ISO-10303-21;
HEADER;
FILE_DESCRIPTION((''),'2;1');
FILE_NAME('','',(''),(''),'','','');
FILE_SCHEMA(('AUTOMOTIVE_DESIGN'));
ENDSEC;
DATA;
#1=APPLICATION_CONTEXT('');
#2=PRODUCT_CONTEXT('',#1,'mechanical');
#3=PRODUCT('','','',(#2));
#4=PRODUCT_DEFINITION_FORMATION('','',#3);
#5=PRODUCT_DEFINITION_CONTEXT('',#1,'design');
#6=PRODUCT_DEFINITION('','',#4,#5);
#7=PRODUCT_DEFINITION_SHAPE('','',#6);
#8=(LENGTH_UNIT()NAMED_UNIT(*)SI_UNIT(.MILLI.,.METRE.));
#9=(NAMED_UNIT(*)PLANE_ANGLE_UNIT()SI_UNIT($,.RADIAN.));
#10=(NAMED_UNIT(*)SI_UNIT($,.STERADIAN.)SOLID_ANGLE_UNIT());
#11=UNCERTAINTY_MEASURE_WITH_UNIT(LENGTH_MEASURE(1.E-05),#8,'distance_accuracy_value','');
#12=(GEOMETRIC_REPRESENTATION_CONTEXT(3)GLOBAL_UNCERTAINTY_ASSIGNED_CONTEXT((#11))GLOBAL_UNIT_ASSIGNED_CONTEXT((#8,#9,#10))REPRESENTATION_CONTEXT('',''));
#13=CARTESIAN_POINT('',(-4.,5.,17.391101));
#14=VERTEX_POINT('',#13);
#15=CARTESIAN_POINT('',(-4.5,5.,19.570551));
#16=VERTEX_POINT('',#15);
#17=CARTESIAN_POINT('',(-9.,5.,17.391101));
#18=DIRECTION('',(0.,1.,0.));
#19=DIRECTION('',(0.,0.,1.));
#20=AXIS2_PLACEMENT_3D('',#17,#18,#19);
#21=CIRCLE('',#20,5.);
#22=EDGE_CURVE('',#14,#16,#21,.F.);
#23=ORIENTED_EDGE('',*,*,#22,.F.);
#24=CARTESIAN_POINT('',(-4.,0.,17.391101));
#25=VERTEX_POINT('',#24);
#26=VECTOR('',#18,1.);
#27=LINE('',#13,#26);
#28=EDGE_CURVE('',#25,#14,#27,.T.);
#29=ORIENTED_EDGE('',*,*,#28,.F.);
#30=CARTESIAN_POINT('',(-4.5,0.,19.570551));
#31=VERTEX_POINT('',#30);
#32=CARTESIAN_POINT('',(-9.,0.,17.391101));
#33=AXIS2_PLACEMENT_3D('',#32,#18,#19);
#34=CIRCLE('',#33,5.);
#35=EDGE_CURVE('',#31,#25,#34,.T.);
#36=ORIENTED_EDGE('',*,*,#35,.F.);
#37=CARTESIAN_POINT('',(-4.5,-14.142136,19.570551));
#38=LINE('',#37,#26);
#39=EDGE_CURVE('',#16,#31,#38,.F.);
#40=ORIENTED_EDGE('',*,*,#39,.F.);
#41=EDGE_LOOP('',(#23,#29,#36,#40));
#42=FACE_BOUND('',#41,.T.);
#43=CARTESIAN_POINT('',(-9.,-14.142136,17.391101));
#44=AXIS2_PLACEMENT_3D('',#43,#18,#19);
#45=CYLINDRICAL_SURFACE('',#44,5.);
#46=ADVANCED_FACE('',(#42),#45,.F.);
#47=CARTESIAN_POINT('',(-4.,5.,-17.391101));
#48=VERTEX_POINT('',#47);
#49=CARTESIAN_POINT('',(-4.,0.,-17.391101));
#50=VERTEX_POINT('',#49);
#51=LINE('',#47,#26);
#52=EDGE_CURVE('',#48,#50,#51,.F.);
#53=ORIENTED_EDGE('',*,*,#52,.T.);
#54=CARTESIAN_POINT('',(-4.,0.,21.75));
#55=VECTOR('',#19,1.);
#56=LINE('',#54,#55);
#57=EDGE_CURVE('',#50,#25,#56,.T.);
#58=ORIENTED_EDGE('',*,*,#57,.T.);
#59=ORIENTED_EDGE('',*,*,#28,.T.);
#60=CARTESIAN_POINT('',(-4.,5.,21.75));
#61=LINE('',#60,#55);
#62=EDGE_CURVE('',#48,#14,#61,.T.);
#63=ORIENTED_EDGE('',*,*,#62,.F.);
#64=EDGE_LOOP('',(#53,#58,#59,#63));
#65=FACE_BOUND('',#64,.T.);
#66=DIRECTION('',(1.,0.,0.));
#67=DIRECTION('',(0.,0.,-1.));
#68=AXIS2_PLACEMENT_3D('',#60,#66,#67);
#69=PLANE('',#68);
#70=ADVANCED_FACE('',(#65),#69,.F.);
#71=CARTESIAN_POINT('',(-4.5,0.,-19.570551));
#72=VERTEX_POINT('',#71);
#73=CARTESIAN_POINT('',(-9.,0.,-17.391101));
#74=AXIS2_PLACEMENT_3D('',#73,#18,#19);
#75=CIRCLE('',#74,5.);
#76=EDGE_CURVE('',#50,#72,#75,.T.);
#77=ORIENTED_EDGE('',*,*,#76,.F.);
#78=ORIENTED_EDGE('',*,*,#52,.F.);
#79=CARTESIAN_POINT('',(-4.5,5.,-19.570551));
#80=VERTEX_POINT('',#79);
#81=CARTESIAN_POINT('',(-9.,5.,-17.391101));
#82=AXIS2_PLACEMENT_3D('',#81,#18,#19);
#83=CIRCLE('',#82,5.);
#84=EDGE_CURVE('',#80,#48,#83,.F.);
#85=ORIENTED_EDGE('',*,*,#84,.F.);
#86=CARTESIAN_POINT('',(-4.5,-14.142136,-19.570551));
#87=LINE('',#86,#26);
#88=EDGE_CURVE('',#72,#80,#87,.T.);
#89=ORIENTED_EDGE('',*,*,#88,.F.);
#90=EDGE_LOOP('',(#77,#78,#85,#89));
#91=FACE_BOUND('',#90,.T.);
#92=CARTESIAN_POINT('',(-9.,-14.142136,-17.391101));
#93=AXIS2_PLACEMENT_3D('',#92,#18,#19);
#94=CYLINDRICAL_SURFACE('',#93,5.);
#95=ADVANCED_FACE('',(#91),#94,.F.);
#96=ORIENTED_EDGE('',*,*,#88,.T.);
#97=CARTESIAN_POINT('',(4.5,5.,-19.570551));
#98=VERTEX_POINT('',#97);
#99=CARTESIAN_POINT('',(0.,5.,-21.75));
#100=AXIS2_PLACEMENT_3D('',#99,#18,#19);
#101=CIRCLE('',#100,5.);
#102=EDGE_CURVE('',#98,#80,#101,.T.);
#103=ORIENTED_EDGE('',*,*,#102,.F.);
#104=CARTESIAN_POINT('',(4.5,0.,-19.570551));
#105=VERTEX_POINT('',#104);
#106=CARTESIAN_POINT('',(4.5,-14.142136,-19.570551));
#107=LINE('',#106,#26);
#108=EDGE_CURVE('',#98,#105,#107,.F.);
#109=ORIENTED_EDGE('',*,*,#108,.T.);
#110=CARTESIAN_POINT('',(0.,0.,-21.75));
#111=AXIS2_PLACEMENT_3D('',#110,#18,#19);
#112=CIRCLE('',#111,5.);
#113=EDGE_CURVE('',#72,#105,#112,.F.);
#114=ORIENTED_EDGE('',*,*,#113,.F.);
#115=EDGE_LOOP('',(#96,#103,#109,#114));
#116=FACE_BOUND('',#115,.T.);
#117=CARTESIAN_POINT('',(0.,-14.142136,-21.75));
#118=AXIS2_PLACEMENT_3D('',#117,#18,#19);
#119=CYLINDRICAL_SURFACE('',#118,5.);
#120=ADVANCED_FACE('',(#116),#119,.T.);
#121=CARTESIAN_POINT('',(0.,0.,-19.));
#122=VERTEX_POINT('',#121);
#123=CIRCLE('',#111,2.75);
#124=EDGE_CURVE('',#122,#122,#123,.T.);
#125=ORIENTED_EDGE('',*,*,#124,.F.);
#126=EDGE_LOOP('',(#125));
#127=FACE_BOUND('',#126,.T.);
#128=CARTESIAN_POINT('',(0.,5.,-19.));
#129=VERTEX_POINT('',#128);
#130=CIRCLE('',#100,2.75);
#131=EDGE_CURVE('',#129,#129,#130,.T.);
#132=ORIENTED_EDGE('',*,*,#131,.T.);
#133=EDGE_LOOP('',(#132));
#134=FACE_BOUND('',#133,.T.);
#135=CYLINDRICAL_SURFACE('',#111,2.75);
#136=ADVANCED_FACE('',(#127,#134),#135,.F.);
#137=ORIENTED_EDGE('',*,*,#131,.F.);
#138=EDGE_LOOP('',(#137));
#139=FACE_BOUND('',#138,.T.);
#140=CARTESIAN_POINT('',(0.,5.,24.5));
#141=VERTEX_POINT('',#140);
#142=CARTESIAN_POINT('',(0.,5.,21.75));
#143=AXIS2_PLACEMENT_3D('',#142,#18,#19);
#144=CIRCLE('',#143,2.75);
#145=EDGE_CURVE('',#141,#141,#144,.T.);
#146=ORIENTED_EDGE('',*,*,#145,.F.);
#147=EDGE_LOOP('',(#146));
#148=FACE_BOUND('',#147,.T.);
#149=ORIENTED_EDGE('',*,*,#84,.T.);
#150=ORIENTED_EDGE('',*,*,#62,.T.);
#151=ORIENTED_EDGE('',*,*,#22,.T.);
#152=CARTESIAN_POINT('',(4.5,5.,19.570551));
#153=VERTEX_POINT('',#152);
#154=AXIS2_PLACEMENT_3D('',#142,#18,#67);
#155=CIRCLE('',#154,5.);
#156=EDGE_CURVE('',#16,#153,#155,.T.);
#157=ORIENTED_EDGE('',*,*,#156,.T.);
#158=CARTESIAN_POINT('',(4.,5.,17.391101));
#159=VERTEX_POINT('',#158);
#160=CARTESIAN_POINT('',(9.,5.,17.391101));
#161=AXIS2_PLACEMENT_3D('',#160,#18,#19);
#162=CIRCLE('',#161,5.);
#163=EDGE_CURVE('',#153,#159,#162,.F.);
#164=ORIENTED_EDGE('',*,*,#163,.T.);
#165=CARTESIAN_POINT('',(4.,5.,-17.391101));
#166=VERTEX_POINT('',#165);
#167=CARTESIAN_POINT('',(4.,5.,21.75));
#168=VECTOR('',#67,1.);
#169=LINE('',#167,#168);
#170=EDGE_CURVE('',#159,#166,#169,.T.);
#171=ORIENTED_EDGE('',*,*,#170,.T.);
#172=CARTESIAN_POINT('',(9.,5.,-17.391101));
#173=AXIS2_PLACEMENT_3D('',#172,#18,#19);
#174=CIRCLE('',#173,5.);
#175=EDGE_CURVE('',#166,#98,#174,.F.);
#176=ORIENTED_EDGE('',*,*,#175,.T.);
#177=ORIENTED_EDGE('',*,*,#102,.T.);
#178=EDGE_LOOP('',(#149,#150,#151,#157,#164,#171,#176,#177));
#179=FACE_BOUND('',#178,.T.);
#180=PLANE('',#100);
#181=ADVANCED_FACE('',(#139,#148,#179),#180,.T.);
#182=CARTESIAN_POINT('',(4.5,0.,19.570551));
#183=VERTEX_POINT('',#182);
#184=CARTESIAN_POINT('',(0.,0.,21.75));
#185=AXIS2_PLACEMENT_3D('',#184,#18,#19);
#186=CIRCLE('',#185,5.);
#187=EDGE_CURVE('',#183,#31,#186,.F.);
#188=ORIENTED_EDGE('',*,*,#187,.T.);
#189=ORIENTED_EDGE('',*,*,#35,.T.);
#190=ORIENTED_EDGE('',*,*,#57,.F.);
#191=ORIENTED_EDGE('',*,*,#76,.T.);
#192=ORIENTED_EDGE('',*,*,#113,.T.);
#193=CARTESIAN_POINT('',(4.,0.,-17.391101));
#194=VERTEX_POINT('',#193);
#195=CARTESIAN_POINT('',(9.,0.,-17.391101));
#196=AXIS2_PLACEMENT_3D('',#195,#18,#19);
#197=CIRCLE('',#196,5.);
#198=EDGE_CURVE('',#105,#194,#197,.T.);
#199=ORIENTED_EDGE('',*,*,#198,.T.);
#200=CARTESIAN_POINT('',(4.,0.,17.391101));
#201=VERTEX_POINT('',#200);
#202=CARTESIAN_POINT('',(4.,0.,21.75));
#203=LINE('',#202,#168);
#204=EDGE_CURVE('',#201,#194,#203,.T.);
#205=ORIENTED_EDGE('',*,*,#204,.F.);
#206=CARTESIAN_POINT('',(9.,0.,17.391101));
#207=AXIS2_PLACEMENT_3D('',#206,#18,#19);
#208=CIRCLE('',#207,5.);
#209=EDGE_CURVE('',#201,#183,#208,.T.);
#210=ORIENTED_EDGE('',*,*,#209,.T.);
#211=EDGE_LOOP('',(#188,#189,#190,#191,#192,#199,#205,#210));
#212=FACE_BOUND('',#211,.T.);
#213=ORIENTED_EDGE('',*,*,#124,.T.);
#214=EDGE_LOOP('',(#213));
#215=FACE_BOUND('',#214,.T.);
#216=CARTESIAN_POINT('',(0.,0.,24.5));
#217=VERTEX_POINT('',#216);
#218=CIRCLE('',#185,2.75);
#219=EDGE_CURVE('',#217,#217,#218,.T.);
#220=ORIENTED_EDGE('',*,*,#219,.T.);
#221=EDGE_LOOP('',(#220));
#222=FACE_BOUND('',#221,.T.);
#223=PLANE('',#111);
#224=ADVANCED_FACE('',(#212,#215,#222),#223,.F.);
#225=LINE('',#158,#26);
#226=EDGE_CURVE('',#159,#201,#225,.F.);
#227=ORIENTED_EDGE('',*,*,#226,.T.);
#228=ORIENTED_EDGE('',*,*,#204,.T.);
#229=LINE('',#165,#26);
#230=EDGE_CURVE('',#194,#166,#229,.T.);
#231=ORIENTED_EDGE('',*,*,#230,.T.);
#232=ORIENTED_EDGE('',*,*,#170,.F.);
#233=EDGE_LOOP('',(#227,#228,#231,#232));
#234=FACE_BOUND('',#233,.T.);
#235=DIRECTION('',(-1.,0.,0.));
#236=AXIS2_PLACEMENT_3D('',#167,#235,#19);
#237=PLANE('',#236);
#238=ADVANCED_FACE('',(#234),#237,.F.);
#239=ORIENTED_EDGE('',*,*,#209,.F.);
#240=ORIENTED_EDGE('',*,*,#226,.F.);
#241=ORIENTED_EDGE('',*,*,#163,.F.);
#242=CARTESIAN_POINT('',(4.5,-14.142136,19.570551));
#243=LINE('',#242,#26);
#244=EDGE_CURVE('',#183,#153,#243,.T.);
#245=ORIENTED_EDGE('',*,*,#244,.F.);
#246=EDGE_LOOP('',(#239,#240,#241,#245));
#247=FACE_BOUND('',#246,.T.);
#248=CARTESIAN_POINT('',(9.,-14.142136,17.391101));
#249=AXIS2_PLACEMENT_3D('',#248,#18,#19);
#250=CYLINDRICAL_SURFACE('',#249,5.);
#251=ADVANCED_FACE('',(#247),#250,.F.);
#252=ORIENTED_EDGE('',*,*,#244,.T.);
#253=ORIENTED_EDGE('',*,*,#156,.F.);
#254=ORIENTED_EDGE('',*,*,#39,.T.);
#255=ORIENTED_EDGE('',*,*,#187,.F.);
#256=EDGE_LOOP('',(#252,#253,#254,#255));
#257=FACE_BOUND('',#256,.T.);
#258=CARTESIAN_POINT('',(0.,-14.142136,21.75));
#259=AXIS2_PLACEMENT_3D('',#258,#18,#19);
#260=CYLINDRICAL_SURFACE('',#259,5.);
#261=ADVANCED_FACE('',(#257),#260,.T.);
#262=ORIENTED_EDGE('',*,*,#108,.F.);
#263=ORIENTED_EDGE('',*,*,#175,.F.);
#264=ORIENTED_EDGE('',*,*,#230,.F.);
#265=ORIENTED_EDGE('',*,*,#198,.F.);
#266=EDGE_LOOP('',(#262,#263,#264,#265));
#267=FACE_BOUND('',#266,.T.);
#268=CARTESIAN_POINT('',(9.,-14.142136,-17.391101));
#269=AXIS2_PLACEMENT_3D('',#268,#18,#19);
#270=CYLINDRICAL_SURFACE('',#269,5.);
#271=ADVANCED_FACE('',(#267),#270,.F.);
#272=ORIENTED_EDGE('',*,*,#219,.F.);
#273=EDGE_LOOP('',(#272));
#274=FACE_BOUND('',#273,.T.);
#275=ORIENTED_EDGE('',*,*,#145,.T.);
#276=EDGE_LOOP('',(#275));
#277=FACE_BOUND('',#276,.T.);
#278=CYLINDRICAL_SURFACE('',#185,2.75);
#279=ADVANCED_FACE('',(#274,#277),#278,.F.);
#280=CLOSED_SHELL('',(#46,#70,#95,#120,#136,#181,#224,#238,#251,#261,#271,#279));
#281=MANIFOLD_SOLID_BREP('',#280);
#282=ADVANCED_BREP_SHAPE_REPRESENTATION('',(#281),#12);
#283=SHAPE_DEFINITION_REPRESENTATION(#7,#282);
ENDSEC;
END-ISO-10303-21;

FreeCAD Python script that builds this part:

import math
import FreeCAD as App
import Part
import Sketcher

V = App.Vector


def edges_at(feature, points):
    """Names of the edges that pass closest to the given points."""
    edges = feature.Shape.Edges
    near = lambda p: min(range(len(edges)), key=lambda i: edges[i].distToShape(Part.Vertex(*p))[0])
    return sorted({f"Edge{near(p) + 1}" for p in points})

doc = App.newDocument("Part")
body = doc.addObject("PartDesign::Body", "Body")

# Sketch on XZ plane
sketch1 = body.newObject("Sketcher::SketchObject", "Sketch")
sketch1.AttachmentSupport = (doc.getObject("XZ_Plane"), [""])
sketch1.MapMode = "FlatFace"
sketch1.addGeometry([
    Part.LineSegment(V(-4, -21.75, 0), V(-4, 21.75, 0)),
    Part.ArcOfCircle(Part.Circle(V(0, 21.75, 0), V(0, 0, 1), 4), math.radians(0), math.radians(180)),
    Part.LineSegment(V(4, 21.75, 0), V(4, -21.75, 0)),
    Part.ArcOfCircle(Part.Circle(V(0, -21.75, 0), V(0, 0, 1), 4), math.radians(180), math.radians(360)),
], False)
sketch1.addConstraint([
    Sketcher.Constraint("Tangent", 0, 2, 1, 2),
    Sketcher.Constraint("Tangent", 1, 1, 2, 1),
    Sketcher.Constraint("Tangent", 2, 2, 3, 2),
    Sketcher.Constraint("Tangent", 3, 1, 0, 1),
    Sketcher.Constraint("Vertical", 0),
    Sketcher.Constraint("Vertical", 2),
    Sketcher.Constraint("Symmetric", 1, 3, 3, 3, -1, 1),
    Sketcher.Constraint("Radius", 1, 4.0),
    Sketcher.Constraint("DistanceY", 0, 1, 0, 2, 43.5),
])
pad1 = body.newObject("PartDesign::Pad", "Pad")
pad1.Profile = sketch1
pad1.Length = 5
pad1.Reversed = True

# Sketch on XZ plane
sketch2 = body.newObject("Sketcher::SketchObject", "Sketch001")
sketch2.AttachmentSupport = (doc.getObject("XZ_Plane"), [""])
sketch2.MapMode = "FlatFace"
sketch2.AttachmentOffset = App.Placement(V(0, 0, -5), App.Rotation())
sketch2.addGeometry([
    Part.Circle(V(0, -21.75, 0), V(0, 0, 1), 2.75),
    Part.Circle(V(0, 21.75, 0), V(0, 0, 1), 2.75),
], False)
sketch2.addConstraint([
    Sketcher.Constraint("Equal", 0, 1),
    Sketcher.Constraint("Symmetric", 0, 3, 1, 3, -1, 1),
    Sketcher.Constraint("PointOnObject", 0, 3, -2),
    Sketcher.Constraint("Diameter", 0, 5.5),
    Sketcher.Constraint("DistanceY", 0, 3, 1, 3, 43.5),
])
pocket1 = body.newObject("PartDesign::Pocket", "Pocket")
pocket1.Profile = sketch2
pocket1.Type = "ThroughAll"
pocket1.Reversed = True

# Sketch on XZ plane
sketch3 = body.newObject("Sketcher::SketchObject", "Sketch002")
sketch3.AttachmentSupport = (doc.getObject("XZ_Plane"), [""])
sketch3.MapMode = "FlatFace"
sketch3.AttachmentOffset = App.Placement(V(0, 0, -5), App.Rotation())
sketch3.addGeometry([
    Part.Circle(V(0, -21.75, 0), V(0, 0, 1), 5),
    Part.Circle(V(0, -21.75, 0), V(0, 0, 1), 2.75),
    Part.Circle(V(0, 21.75, 0), V(0, 0, 1), 5),
    Part.Circle(V(0, 21.75, 0), V(0, 0, 1), 2.75),
], False)
sketch3.addConstraint([
    Sketcher.Constraint("Coincident", 1, 3, 0, 3),
    Sketcher.Constraint("Coincident", 3, 3, 2, 3),
    Sketcher.Constraint("Equal", 0, 2),
    Sketcher.Constraint("Equal", 1, 3),
    Sketcher.Constraint("Symmetric", 0, 3, 2, 3, -1, 1),
    Sketcher.Constraint("PointOnObject", 0, 3, -2),
    Sketcher.Constraint("Diameter", 0, 10.0),
    Sketcher.Constraint("Diameter", 1, 5.5),
    Sketcher.Constraint("DistanceY", 0, 3, 2, 3, 43.5),
])
pad2 = body.newObject("PartDesign::Pad", "Pad001")
pad2.Profile = sketch3
pad2.Length = 5
doc.recompute()

fillet = body.newObject("PartDesign::Fillet", "Fillet")
fillet.Base = (pad2, edges_at(pad2, [
    (-4, 2.5, -18.75),
    (4, 2.5, -18.75),
    (-4, 2.5, 18.75),
    (4, 2.5, 18.75),
]))
fillet.Radius = 5

doc.recompute()
